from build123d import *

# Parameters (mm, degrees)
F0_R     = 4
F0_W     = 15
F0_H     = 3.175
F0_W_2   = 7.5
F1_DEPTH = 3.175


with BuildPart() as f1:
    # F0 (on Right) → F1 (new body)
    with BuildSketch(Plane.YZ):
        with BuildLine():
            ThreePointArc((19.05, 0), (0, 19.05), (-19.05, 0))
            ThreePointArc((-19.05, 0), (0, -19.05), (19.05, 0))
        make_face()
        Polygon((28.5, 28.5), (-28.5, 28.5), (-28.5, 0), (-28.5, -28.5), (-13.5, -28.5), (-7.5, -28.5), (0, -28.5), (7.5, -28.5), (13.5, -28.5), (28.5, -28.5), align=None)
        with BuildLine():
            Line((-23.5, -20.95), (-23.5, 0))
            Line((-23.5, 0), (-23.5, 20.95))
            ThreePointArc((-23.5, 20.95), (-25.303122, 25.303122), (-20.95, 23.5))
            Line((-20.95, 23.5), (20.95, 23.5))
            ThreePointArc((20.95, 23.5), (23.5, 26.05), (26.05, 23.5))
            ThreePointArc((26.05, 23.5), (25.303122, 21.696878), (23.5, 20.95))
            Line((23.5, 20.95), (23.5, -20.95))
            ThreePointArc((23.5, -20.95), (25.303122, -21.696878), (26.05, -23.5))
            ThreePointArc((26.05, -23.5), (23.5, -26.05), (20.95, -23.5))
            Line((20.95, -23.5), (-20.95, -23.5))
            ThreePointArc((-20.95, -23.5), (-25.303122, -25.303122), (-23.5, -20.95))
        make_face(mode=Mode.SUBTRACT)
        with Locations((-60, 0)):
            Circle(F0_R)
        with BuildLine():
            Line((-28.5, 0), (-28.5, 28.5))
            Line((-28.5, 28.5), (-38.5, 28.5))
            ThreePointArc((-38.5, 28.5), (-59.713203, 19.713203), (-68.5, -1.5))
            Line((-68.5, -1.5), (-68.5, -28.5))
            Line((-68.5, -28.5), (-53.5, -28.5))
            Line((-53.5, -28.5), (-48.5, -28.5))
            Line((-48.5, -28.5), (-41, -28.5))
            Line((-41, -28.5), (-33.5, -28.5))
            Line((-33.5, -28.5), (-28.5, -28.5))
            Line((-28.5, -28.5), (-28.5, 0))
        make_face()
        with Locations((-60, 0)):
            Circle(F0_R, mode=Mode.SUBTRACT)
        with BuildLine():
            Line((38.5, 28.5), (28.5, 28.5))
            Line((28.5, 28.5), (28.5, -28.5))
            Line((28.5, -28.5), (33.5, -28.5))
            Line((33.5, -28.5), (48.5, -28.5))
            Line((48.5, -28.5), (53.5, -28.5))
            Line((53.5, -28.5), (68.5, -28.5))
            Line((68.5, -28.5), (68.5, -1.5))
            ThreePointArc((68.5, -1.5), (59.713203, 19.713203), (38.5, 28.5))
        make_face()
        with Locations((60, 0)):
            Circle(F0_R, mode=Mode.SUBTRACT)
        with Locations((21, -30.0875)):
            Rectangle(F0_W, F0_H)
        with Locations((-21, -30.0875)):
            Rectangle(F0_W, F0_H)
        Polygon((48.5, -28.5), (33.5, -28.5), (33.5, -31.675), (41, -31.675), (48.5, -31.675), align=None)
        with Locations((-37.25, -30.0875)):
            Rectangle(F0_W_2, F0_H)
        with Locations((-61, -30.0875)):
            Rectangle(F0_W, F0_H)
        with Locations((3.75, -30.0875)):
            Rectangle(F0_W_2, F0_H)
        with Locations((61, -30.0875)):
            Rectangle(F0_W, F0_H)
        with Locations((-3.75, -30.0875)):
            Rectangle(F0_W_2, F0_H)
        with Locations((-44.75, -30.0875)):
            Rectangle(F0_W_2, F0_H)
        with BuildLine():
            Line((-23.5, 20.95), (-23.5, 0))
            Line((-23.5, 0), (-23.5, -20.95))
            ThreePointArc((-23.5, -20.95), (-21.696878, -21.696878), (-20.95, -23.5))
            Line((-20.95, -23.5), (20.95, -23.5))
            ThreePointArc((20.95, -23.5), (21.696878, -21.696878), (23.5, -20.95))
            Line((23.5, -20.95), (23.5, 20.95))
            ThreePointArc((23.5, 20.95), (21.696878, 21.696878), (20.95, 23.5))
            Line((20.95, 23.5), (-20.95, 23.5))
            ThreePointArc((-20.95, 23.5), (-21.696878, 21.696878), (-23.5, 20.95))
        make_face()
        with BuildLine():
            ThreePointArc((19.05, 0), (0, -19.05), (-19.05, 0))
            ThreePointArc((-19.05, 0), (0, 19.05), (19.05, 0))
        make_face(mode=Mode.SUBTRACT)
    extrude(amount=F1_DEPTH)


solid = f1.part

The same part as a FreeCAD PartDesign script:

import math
import FreeCAD as App
import Part
import Sketcher
Q = App.Units.Quantity

doc = App.newDocument("Part")
body = doc.addObject("PartDesign::Body", "Body")

sketch1 = body.newObject("Sketcher::SketchObject", "Sketch")
sketch1.AttachmentSupport = (doc.getObject("YZ_Plane"), [""])
sketch1.MapMode = "FlatFace"
sketch1.addGeometry([
    Part.ArcOfCircle(Part.Circle(App.Vector(-38.5, -1.5, 0), App.Vector(0, 0, 1), 30), math.radians(90), math.radians(180)),
    Part.LineSegment(App.Vector(-68.5, -1.5, 0), App.Vector(-68.5, -31.7, 0)),
    Part.LineSegment(App.Vector(-68.5, -31.7, 0), App.Vector(-53.5, -31.7, 0)),
    Part.LineSegment(App.Vector(-53.5, -31.7, 0), App.Vector(-53.5, -28.5, 0)),
    Part.LineSegment(App.Vector(-53.5, -28.5, 0), App.Vector(-48.5, -28.5, 0)),
    Part.LineSegment(App.Vector(-48.5, -28.5, 0), App.Vector(-48.5, -31.7, 0)),
    Part.LineSegment(App.Vector(-48.5, -31.7, 0), App.Vector(-33.5, -31.7, 0)),
    Part.LineSegment(App.Vector(-33.5, -31.7, 0), App.Vector(-33.5, -28.5, 0)),
    Part.LineSegment(App.Vector(-33.5, -28.5, 0), App.Vector(-28.5, -28.5, 0)),
    Part.LineSegment(App.Vector(-28.5, -28.5, 0), App.Vector(-28.5, -31.7, 0)),
    Part.LineSegment(App.Vector(-28.5, -31.7, 0), App.Vector(-13.5, -31.7, 0)),
    Part.LineSegment(App.Vector(-13.5, -31.7, 0), App.Vector(-13.5, -28.5, 0)),
    Part.LineSegment(App.Vector(-13.5, -28.5, 0), App.Vector(-7.5, -28.5, 0)),
    Part.LineSegment(App.Vector(-7.5, -28.5, 0), App.Vector(-7.5, -31.7, 0)),
    Part.LineSegment(App.Vector(-7.5, -31.7, 0), App.Vector(7.5, -31.7, 0)),
    Part.LineSegment(App.Vector(7.5, -31.7, 0), App.Vector(7.5, -28.5, 0)),
    Part.LineSegment(App.Vector(7.5, -28.5, 0), App.Vector(13.5, -28.5, 0)),
    Part.LineSegment(App.Vector(13.5, -28.5, 0), App.Vector(13.5, -31.7, 0)),
    Part.LineSegment(App.Vector(13.5, -31.7, 0), App.Vector(28.5, -31.7, 0)),
    Part.LineSegment(App.Vector(28.5, -31.7, 0), App.Vector(28.5, -28.5, 0)),
    Part.LineSegment(App.Vector(28.5, -28.5, 0), App.Vector(33.5, -28.5, 0)),
    Part.LineSegment(App.Vector(33.5, -28.5, 0), App.Vector(33.5, -31.7, 0)),
    Part.LineSegment(App.Vector(33.5, -31.7, 0), App.Vector(48.5, -31.7, 0)),
    Part.LineSegment(App.Vector(48.5, -31.7, 0), App.Vector(48.5, -28.5, 0)),
    Part.LineSegment(App.Vector(48.5, -28.5, 0), App.Vector(53.5, -28.5, 0)),
    Part.LineSegment(App.Vector(53.5, -28.5, 0), App.Vector(53.5, -31.7, 0)),
    Part.LineSegment(App.Vector(53.5, -31.7, 0), App.Vector(68.5, -31.7, 0)),
    Part.LineSegment(App.Vector(68.5, -31.7, 0), App.Vector(68.5, -1.5, 0)),
    Part.ArcOfCircle(Part.Circle(App.Vector(38.5, -1.5, 0), App.Vector(0, 0, 1), 30), math.radians(0), math.radians(90)),
    Part.LineSegment(App.Vector(38.5, 28.5, 0), App.Vector(-38.5, 28.5, 0)),
    Part.ArcOfCircle(Part.Circle(App.Vector(-23.5, -23.5, 0), App.Vector(0, 0, 1), 2.5), math.radians(90), math.radians(360)),
    Part.ArcOfCircle(Part.Circle(App.Vector(-23.5, -23.5, 0), App.Vector(0, 0, 1), 2.6), math.radians(0), math.radians(90)),
    Part.ArcOfCircle(Part.Circle(App.Vector(23.5, -23.5, 0), App.Vector(0, 0, 1), 2.6), math.radians(0), math.radians(90)),
    Part.ArcOfCircle(Part.Circle(App.Vector(23.5, -23.5, 0), App.Vector(0, 0, 1), 2.5), math.radians(180), math.radians(360)),
    Part.ArcOfCircle(Part.Circle(App.Vector(23.5, -23.5, 0), App.Vector(0, 0, 1), 2.6), math.radians(90), math.radians(180)),
    Part.Circle(App.Vector(0, 0, 0), App.Vector(0, 0, 1), 19.1),
    Part.Circle(App.Vector(-60, 0, 0), App.Vector(0, 0, 1), 4),
    Part.ArcOfCircle(Part.Circle(App.Vector(-23.5, 23.5, 0), App.Vector(0, 0, 1), 2.5), math.radians(0), math.radians(270)),
    Part.ArcOfCircle(Part.Circle(App.Vector(-23.5, 23.5, 0), App.Vector(0, 0, 1), 2.6), math.radians(-90), math.radians(0)),
    Part.Circle(App.Vector(60, 0, 0), App.Vector(0, 0, 1), 4),
    Part.ArcOfCircle(Part.Circle(App.Vector(23.5, 23.5, 0), App.Vector(0, 0, 1), 2.5), math.radians(0), math.radians(180)),
    Part.ArcOfCircle(Part.Circle(App.Vector(23.5, 23.5, 0), App.Vector(0, 0, 1), 2.6), math.radians(-90), math.radians(0)),
    Part.ArcOfCircle(Part.Circle(App.Vector(23.5, 23.5, 0), App.Vector(0, 0, 1), 2.6), math.radians(-180), math.radians(-90)),
], False)
sketch1.addConstraint([
    Sketcher.Constraint("Tangent", 0, 2, 1, 1),
    Sketcher.Constraint("Coincident", 1, 2, 2, 1),
    Sketcher.Constraint("Coincident", 2, 2, 3, 1),
    Sketcher.Constraint("Coincident", 3, 2, 4, 1),
    Sketcher.Constraint("Coincident", 4, 2, 5, 1),
    Sketcher.Constraint("Coincident", 5, 2, 6, 1),
    Sketcher.Constraint("Coincident", 6, 2, 7, 1),
    Sketcher.Constraint("Coincident", 7, 2, 8, 1),
    Sketcher.Constraint("Coincident", 8, 2, 9, 1),
    Sketcher.Constraint("Coincident", 9, 2, 10, 1),
    Sketcher.Constraint("Coincident", 10, 2, 11, 1),
    Sketcher.Constraint("Coincident", 11, 2, 12, 1),
    Sketcher.Constraint("Coincident", 12, 2, 13, 1),
    Sketcher.Constraint("Coincident", 13, 2, 14, 1),
    Sketcher.Constraint("Coincident", 14, 2, 15, 1),
    Sketcher.Constraint("Coincident", 15, 2, 16, 1),
    Sketcher.Constraint("Coincident", 16, 2, 17, 1),
    Sketcher.Constraint("Coincident", 17, 2, 18, 1),
    Sketcher.Constraint("Coincident", 18, 2, 19, 1),
    Sketcher.Constraint("Coincident", 19, 2, 20, 1),
    Sketcher.Constraint("Coincident", 20, 2, 21, 1),
    Sketcher.Constraint("Coincident", 21, 2, 22, 1),
    Sketcher.Constraint("Coincident", 22, 2, 23, 1),
    Sketcher.Constraint("Coincident", 23, 2, 24, 1),
    Sketcher.Constraint("Coincident", 24, 2, 25, 1),
    Sketcher.Constraint("Coincident", 25, 2, 26, 1),
    Sketcher.Constraint("Coincident", 26, 2, 27, 1),
    Sketcher.Constraint("Tangent", 27, 2, 28, 1),
    Sketcher.Constraint("Tangent", 28, 2, 29, 1),
    Sketcher.Constraint("Tangent", 29, 2, 0, 1),
    Sketcher.Constraint("Tangent", 30, 1, 31, 2),
    Sketcher.Constraint("Coincident", 31, 1, 30, 2),
    Sketcher.Constraint("Tangent", 32, 1, 33, 2),
    Sketcher.Constraint("Tangent", 33, 1, 34, 2),
    Sketcher.Constraint("Tangent", 34, 1, 32, 2),
    Sketcher.Constraint("Tangent", 37, 1, 38, 2),
    Sketcher.Constraint("Coincident", 38, 1, 37, 2),
    Sketcher.Constraint("Tangent", 40, 1, 41, 2),
    Sketcher.Constraint("Tangent", 41, 1, 42, 2),
    Sketcher.Constraint("Tangent", 42, 1, 40, 2),
    Sketcher.Constraint("Vertical", 1),
    Sketcher.Constraint("Horizontal", 2),
    Sketcher.Constraint("Vertical", 3),
    Sketcher.Constraint("Horizontal", 4),
    Sketcher.Constraint("Vertical", 5),
    Sketcher.Constraint("Horizontal", 6),
    Sketcher.Constraint("Vertical", 7),
    Sketcher.Constraint("Horizontal", 8),
    Sketcher.Constraint("Vertical", 9),
    Sketcher.Constraint("Horizontal", 10),
    Sketcher.Constraint("Vertical", 11),
    Sketcher.Constraint("Horizontal", 12),
    Sketcher.Constraint("Vertical", 13),
    Sketcher.Constraint("Horizontal", 14),
    Sketcher.Constraint("Vertical", 15),
    Sketcher.Constraint("Horizontal", 16),
    Sketcher.Constraint("Vertical", 17),
    Sketcher.Constraint("Horizontal", 18),
    Sketcher.Constraint("Vertical", 19),
    Sketcher.Constraint("Horizontal", 20),
    Sketcher.Constraint("Vertical", 21),
    Sketcher.Constraint("Horizontal", 22),
    Sketcher.Constraint("Vertical", 23),
    Sketcher.Constraint("Horizontal", 24),
    Sketcher.Constraint("Vertical", 25),
    Sketcher.Constraint("Horizontal", 26),
    Sketcher.Constraint("Vertical", 27),
    Sketcher.Constraint("Horizontal", 29),
    Sketcher.Constraint("Coincident", 35, 3, -1, 1),
    Sketcher.Constraint("Equal", 0, 28),
    Sketcher.Constraint("Equal", 31, 32),
    Sketcher.Constraint("Equal", 34, 37),
    Sketcher.Constraint("Equal", 36, 39),
    Sketcher.Constraint("Equal", 38, 40),
    Sketcher.Constraint("Symmetric", 32, 3, 37, 3, -1, 1),
    Sketcher.Constraint("Symmetric", 36, 3, 39, 3, -1, 1),
    Sketcher.Constraint("Symmetric", 30, 3, 40, 3, -1, 1),
    Sketcher.Constraint("Symmetric", 30, 3, 32, 3, -2),
    Sketcher.Constraint("Symmetric", 12, 2, 15, 2, -2),
    Sketcher.Constraint("Symmetric", 10, 2, 17, 2, -2),
    Sketcher.Constraint("Symmetric", 8, 2, 19, 2, -2),
    Sketcher.Constraint("Symmetric", 6, 2, 21, 2, -2),
    Sketcher.Constraint("Symmetric", 4, 2, 23, 2, -2),
    Sketcher.Constraint("Symmetric", 2, 2, 25, 2, -2),
    Sketcher.Constraint("PointOnObject", 36, 3, -1),
    Sketcher.Constraint("Horizontal", 2, 2, 5, 2),
    Sketcher.Constraint("Horizontal", 4, 2, 7, 2),
    Sketcher.Constraint("Horizontal", 6, 2, 9, 2),
    Sketcher.Constraint("Horizontal", 8, 2, 11, 2),
    Sketcher.Constraint("Horizontal", 10, 2, 13, 2),
    Sketcher.Constraint("Horizontal", 34, 3, 31, 1),
    Sketcher.Constraint("Horizontal", 31, 1, 32, 1),
    Sketcher.Constraint("Horizontal", 32, 1, 33, 1),
    Sketcher.Constraint("Horizontal", 42, 3, 37, 1),
    Sketcher.Constraint("Horizontal", 37, 1, 40, 1),
    Sketcher.Constraint("Horizontal", 40, 1, 42, 1),
    Sketcher.Constraint("Vertical", 38, 3, 30, 1),
    Sketcher.Constraint("Vertical", 42, 3, 34, 1),
    Sketcher.Constraint("Vertical", 30, 1, 38, 1),
    Sketcher.Constraint("Vertical", 34, 1, 41, 1),
    Sketcher.Constraint("Equal", 2, 6),
    Sketcher.Constraint("Equal", 4, 8),
    Sketcher.Constraint("Equal", 6, 10),
    Sketcher.Constraint("Equal", 10, 14),
    Sketcher.Constraint("Equal", 22, 26),
    Sketcher.Constraint("Diameter", 36, Q("8 mm")),
    Sketcher.Constraint("Radius", 0, Q("30.000001 mm")),
    Sketcher.Constraint("Diameter", 35, Q("38.1 mm")),
    Sketcher.Constraint("DistanceX", 2, 1, 2, 2, Q("15 mm")),
    Sketcher.Constraint("DistanceX", 4, 1, 4, 2, Q("5 mm")),
    Sketcher.Constraint("DistanceX", 12, 1, 12, 2, Q("6 mm")),
    Sketcher.Constraint("Radius", 30, Q("2.55 mm")),
    Sketcher.Constraint("DistanceX", 36, 3, -1, 1, Q("60 mm")),
    Sketcher.Constraint("DistanceX", 0, 3, 30, 3, Q("14.999999 mm")),
    Sketcher.Constraint("DistanceY", 30, 3, 0, 3, Q("21.999998 mm")),
    Sketcher.Constraint("DistanceY", 0, 3, 37, 3, Q("25.000001 mm")),
    Sketcher.Constraint("DistanceY", 3, 2, 31, 3, Q("4.999999 mm")),
    Sketcher.Constraint("DistanceY", 1, 2, 1, 1, Q("30.175 mm")),
])
pad1 = body.newObject("PartDesign::Pad", "Pad")
pad1.Profile = sketch1
pad1.Length = 3.175

doc.recompute()
